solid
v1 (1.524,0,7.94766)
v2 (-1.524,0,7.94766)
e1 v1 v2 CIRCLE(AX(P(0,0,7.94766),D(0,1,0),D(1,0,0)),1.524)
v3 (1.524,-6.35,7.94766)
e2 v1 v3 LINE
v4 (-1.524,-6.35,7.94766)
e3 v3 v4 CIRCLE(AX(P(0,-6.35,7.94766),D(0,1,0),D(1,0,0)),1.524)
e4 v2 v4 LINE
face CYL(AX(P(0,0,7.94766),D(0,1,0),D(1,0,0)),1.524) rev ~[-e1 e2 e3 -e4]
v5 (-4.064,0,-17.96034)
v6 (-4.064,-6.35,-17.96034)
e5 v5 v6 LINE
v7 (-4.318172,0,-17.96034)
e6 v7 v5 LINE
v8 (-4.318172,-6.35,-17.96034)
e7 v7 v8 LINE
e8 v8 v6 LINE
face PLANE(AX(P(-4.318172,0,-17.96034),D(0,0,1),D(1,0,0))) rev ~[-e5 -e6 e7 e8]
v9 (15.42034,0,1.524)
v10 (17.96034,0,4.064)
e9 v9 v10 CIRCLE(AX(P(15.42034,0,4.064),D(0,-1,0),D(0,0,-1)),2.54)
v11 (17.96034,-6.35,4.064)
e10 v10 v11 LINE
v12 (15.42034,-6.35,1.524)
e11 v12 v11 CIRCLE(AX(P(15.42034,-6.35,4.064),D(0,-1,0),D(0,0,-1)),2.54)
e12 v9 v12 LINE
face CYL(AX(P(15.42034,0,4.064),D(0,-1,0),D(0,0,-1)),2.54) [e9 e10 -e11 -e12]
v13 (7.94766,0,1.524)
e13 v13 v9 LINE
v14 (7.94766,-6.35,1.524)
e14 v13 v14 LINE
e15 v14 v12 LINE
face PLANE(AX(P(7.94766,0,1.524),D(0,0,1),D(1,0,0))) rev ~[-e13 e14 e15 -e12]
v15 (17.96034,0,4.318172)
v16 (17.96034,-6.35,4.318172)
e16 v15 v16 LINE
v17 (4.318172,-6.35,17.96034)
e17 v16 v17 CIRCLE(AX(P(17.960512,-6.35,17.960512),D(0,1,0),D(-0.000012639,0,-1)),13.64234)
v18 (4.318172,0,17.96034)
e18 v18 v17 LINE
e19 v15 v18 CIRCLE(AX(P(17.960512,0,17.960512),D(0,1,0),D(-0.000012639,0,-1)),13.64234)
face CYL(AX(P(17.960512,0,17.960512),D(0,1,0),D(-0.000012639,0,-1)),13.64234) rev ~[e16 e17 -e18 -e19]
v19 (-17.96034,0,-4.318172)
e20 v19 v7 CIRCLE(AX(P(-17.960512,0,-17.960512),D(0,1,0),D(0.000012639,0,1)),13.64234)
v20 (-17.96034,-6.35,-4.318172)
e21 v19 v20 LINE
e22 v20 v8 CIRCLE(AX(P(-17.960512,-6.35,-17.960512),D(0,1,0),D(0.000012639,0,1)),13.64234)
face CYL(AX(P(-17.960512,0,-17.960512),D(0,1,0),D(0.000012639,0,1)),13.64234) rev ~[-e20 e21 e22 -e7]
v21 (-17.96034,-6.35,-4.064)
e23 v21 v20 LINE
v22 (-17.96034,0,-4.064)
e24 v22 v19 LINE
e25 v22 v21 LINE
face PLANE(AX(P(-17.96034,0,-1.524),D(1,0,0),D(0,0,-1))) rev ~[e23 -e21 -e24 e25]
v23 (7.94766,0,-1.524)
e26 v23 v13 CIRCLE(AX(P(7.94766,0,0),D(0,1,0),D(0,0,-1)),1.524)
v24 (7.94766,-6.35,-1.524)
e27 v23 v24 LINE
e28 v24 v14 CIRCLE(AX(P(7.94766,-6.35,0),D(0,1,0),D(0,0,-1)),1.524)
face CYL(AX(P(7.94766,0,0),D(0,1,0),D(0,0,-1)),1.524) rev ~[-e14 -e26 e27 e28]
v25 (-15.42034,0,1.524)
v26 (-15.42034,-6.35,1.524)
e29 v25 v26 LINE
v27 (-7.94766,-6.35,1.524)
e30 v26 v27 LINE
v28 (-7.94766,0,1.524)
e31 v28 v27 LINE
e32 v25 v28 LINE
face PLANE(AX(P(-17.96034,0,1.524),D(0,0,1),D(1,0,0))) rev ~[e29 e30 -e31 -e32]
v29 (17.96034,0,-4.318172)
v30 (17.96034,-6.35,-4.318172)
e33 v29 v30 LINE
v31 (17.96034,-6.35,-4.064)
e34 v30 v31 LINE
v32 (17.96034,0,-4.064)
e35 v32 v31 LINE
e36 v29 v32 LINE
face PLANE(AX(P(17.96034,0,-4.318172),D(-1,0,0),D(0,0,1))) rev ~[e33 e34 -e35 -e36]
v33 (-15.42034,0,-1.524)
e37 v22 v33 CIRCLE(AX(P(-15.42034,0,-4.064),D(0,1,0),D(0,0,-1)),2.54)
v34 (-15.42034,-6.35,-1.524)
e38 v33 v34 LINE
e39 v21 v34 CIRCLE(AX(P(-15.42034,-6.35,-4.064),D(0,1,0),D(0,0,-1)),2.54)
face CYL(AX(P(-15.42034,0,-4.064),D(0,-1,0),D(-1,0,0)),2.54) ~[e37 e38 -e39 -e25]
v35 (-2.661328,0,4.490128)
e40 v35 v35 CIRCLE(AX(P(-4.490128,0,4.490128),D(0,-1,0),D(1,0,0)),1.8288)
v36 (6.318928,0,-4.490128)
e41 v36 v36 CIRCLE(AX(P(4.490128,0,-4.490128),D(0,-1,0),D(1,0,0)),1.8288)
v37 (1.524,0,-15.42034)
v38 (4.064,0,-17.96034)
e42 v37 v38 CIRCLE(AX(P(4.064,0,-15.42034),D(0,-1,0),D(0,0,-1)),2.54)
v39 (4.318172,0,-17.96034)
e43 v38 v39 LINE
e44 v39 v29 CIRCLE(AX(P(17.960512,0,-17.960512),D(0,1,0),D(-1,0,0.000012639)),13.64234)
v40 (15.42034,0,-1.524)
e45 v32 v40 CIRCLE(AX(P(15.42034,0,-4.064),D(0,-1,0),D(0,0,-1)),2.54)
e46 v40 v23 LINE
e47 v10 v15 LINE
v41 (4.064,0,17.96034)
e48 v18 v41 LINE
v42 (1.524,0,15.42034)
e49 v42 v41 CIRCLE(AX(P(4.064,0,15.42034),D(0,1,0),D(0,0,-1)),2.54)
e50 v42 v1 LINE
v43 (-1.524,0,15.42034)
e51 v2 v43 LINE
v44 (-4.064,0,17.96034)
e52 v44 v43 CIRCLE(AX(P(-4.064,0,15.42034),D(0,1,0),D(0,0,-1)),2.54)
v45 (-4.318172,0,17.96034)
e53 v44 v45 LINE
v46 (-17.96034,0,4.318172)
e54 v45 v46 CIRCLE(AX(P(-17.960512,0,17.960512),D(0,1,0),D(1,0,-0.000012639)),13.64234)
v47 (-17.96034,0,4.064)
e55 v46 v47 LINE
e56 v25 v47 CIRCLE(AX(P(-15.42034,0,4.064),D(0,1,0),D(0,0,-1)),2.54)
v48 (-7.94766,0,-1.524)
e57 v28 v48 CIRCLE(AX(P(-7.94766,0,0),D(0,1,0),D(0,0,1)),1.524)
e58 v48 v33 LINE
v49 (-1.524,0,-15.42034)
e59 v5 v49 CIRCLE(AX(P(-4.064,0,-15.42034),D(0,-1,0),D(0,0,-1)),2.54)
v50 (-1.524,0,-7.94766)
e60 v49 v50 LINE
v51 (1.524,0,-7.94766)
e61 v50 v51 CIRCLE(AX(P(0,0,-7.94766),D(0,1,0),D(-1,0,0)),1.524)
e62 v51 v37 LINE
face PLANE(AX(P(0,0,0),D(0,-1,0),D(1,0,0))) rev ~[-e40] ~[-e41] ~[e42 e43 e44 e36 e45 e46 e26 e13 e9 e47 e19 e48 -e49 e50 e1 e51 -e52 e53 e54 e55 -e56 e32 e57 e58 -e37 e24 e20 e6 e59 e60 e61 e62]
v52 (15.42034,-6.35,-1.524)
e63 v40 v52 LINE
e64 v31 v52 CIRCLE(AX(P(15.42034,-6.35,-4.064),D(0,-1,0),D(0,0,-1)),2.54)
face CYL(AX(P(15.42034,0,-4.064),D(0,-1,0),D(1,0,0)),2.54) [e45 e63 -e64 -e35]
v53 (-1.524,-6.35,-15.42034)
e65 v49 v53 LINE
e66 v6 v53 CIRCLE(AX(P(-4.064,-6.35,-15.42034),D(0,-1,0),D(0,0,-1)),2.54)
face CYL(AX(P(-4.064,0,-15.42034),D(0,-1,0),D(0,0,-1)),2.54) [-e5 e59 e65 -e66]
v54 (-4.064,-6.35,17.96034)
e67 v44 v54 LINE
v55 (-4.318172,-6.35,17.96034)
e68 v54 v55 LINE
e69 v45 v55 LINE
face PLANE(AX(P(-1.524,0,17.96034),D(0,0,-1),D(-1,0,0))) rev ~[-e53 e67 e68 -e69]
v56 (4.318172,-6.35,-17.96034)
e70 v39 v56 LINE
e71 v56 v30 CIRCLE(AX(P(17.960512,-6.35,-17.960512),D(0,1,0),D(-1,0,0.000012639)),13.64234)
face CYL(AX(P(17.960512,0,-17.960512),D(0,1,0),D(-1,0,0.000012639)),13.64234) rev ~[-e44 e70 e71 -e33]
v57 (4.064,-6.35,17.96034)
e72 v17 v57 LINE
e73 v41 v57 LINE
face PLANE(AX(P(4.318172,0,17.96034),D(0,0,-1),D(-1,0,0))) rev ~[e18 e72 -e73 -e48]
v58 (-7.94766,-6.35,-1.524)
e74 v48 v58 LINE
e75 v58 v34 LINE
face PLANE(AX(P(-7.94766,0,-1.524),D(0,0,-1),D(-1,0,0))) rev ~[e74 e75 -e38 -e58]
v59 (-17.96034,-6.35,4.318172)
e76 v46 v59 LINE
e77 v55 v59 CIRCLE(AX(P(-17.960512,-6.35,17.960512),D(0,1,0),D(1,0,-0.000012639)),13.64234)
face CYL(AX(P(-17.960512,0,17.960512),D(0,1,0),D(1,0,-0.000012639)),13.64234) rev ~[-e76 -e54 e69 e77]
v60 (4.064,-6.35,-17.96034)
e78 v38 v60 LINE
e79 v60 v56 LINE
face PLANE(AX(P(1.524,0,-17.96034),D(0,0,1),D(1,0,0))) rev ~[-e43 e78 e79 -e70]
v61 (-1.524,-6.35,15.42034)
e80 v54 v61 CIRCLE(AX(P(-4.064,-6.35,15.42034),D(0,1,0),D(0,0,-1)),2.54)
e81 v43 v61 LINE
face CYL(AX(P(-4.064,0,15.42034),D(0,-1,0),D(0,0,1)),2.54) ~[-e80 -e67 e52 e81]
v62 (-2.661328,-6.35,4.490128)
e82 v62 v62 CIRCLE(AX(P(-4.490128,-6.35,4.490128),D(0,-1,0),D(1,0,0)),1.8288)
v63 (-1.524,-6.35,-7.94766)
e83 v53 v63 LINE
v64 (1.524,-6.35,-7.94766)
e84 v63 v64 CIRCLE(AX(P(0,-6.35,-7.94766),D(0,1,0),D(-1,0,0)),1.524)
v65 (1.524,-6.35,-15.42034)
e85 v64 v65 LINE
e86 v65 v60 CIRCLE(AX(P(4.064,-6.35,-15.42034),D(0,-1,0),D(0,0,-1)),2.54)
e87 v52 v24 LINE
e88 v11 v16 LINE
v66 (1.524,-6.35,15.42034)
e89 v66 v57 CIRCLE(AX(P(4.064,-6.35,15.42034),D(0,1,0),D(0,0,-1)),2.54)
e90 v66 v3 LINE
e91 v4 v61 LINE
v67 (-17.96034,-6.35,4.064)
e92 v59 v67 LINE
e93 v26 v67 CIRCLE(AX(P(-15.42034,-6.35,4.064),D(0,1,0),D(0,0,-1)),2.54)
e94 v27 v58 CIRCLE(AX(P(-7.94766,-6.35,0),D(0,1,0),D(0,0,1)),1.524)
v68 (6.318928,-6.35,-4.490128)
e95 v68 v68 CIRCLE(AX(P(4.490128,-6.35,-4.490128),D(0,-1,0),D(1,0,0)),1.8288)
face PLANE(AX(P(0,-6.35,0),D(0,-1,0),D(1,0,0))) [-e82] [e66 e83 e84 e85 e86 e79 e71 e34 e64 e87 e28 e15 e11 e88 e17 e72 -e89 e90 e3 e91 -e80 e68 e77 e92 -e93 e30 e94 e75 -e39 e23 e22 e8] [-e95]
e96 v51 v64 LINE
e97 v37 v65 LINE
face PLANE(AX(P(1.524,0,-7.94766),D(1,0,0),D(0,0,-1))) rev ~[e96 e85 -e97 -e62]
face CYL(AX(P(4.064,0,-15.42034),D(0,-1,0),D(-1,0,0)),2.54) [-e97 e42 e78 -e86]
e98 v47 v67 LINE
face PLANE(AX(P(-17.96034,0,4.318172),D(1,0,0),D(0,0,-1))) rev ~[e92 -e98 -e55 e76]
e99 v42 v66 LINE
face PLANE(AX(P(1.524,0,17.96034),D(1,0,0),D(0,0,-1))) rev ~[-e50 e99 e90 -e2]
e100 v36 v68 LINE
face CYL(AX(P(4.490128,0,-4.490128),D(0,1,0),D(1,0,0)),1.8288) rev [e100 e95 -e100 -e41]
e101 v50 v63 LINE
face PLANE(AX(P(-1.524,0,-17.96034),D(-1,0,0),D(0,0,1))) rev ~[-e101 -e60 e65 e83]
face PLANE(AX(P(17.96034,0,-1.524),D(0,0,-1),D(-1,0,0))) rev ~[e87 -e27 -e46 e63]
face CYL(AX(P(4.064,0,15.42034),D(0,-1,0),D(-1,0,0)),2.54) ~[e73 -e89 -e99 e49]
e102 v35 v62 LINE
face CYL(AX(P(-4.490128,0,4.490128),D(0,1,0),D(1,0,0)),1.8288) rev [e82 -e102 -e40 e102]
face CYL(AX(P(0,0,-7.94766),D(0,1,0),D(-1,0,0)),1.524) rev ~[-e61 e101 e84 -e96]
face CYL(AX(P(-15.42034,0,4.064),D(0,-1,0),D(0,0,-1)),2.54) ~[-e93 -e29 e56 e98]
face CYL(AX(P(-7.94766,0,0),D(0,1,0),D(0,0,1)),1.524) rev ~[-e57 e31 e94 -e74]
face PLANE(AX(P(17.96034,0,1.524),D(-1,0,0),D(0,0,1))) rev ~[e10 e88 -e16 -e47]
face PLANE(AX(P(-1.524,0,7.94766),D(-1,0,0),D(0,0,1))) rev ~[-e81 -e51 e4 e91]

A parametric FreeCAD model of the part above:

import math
import FreeCAD as App
import Part
import Sketcher
Q = App.Units.Quantity


def edges_at(feature, points):
    """Names of the edges that pass closest to the given points."""
    edges = feature.Shape.Edges
    near = lambda p: min(range(len(edges)), key=lambda i: edges[i].distToShape(Part.Vertex(*p))[0])
    return sorted({f"Edge{near(p) + 1}" for p in points})

doc = App.newDocument("Part")
body = doc.addObject("PartDesign::Body", "Body")

# Sketch on XZ plane
sketch1 = doc.addObject("Sketcher::SketchObject", "Sketch")
body.addObject(sketch1)
sketch1.AttachmentSupport = (doc.XZ_Plane, [""])
sketch1.MapMode = "FlatFace"
sketch1.addGeometry(Part.LineSegment(App.Vector(-4.318172, -17.96034, 0), App.Vector(-1.524, -17.96034, 0)), False)
sketch1.addGeometry(Part.LineSegment(App.Vector(-1.524, -17.96034, 0), App.Vector(-1.524, -7.94766, 0)), False)
sketch1.addGeometry(Part.ArcOfCircle(Part.Circle(App.Vector(0, -7.94766, 0), App.Vector(0, 0, 1), 1.524), math.radians(0), math.radians(180)), False)
sketch1.addGeometry(Part.LineSegment(App.Vector(1.524, -7.94766, 0), App.Vector(1.524, -17.96034, 0)), False)
sketch1.addGeometry(Part.LineSegment(App.Vector(1.524, -17.96034, 0), App.Vector(4.318172, -17.96034, 0)), False)
sketch1.addGeometry(Part.ArcOfCircle(Part.Circle(App.Vector(17.960512, -17.960512, 0), App.Vector(0, 0, 1), 13.64234), math.radians(90.000724), math.radians(179.999276)), False)
sketch1.addGeometry(Part.LineSegment(App.Vector(17.96034, -4.318172, 0), App.Vector(17.96034, -1.524, 0)), False)
sketch1.addGeometry(Part.LineSegment(App.Vector(17.96034, -1.524, 0), App.Vector(7.94766, -1.524, 0)), False)
sketch1.addGeometry(Part.ArcOfCircle(Part.Circle(App.Vector(7.94766, 0, 0), App.Vector(0, 0, 1), 1.524), math.radians(90), math.radians(270)), False)
sketch1.addGeometry(Part.LineSegment(App.Vector(7.94766, 1.524, 0), App.Vector(17.96034, 1.524, 0)), False)
sketch1.addGeometry(Part.LineSegment(App.Vector(17.96034, 1.524, 0), App.Vector(17.96034, 4.318172, 0)), False)
sketch1.addGeometry(Part.ArcOfCircle(Part.Circle(App.Vector(17.960512, 17.960512, 0), App.Vector(0, 0, 1), 13.64234), math.radians(-179.999276), math.radians(-90.000724)), False)
sketch1.addGeometry(Part.LineSegment(App.Vector(4.318172, 17.96034, 0), App.Vector(1.524, 17.96034, 0)), False)
sketch1.addGeometry(Part.LineSegment(App.Vector(1.524, 17.96034, 0), App.Vector(1.524, 7.94766, 0)), False)
sketch1.addGeometry(Part.ArcOfCircle(Part.Circle(App.Vector(0, 7.94766, 0), App.Vector(0, 0, 1), 1.524), math.radians(180), math.radians(360)), False)
sketch1.addGeometry(Part.LineSegment(App.Vector(-1.524, 7.94766, 0), App.Vector(-1.524, 17.96034, 0)), False)
sketch1.addGeometry(Part.LineSegment(App.Vector(-1.524, 17.96034, 0), App.Vector(-4.318172, 17.96034, 0)), False)
sketch1.addGeometry(Part.ArcOfCircle(Part.Circle(App.Vector(-17.960512, 17.960512, 0), App.Vector(0, 0, 1), 13.64234), math.radians(-89.999276), math.radians(-0.000724)), False)
sketch1.addGeometry(Part.LineSegment(App.Vector(-17.96034, 4.318172, 0), App.Vector(-17.96034, 1.524, 0)), False)
sketch1.addGeometry(Part.LineSegment(App.Vector(-17.96034, 1.524, 0), App.Vector(-7.94766, 1.524, 0)), False)
sketch1.addGeometry(Part.ArcOfCircle(Part.Circle(App.Vector(-7.94766, 0, 0), App.Vector(0, 0, 1), 1.524), math.radians(-90), math.radians(90)), False)
sketch1.addGeometry(Part.LineSegment(App.Vector(-7.94766, -1.524, 0), App.Vector(-17.96034, -1.524, 0)), False)
sketch1.addGeometry(Part.LineSegment(App.Vector(-17.96034, -1.524, 0), App.Vector(-17.96034, -4.318172, 0)), False)
sketch1.addGeometry(Part.ArcOfCircle(Part.Circle(App.Vector(-17.960512, -17.960512, 0), App.Vector(0, 0, 1), 13.64234), math.radians(0.000724), math.radians(89.999276)), False)
sketch1.addGeometry(Part.Circle(App.Vector(4.490128, -4.490128, 0), App.Vector(0, 0, 1), 1.8288), False)
sketch1.addGeometry(Part.Circle(App.Vector(-4.490128, 4.490128, 0), App.Vector(0, 0, 1), 1.8288), False)
sketch1.addConstraint(Sketcher.Constraint("Coincident", 0, 2, 1, 1))
sketch1.addConstraint(Sketcher.Constraint("Tangent", 1, 2, 2, 2))
sketch1.addConstraint(Sketcher.Constraint("Tangent", 2, 1, 3, 1))
sketch1.addConstraint(Sketcher.Constraint("Coincident", 3, 2, 4, 1))
sketch1.addConstraint(Sketcher.Constraint("Coincident", 4, 2, 5, 2))
sketch1.addConstraint(Sketcher.Constraint("Coincident", 5, 1, 6, 1))
sketch1.addConstraint(Sketcher.Constraint("Coincident", 6, 2, 7, 1))
sketch1.addConstraint(Sketcher.Constraint("Tangent", 7, 2, 8, 2))
sketch1.addConstraint(Sketcher.Constraint("Tangent", 8, 1, 9, 1))
sketch1.addConstraint(Sketcher.Constraint("Coincident", 9, 2, 10, 1))
sketch1.addConstraint(Sketcher.Constraint("Coincident", 10, 2, 11, 2))
sketch1.addConstraint(Sketcher.Constraint("Coincident", 11, 1, 12, 1))
sketch1.addConstraint(Sketcher.Constraint("Coincident", 12, 2, 13, 1))
sketch1.addConstraint(Sketcher.Constraint("Tangent", 13, 2, 14, 2))
sketch1.addConstraint(Sketcher.Constraint("Tangent", 14, 1, 15, 1))
sketch1.addConstraint(Sketcher.Constraint("Coincident", 15, 2, 16, 1))
sketch1.addConstraint(Sketcher.Constraint("Coincident", 16, 2, 17, 2))
sketch1.addConstraint(Sketcher.Constraint("Coincident", 17, 1, 18, 1))
sketch1.addConstraint(Sketcher.Constraint("Coincident", 18, 2, 19, 1))
sketch1.addConstraint(Sketcher.Constraint("Tangent", 19, 2, 20, 2))
sketch1.addConstraint(Sketcher.Constraint("Tangent", 20, 1, 21, 1))
sketch1.addConstraint(Sketcher.Constraint("Coincident", 21, 2, 22, 1))
sketch1.addConstraint(Sketcher.Constraint("Coincident", 22, 2, 23, 2))
sketch1.addConstraint(Sketcher.Constraint("Coincident", 23, 1, 0, 1))
sketch1.addConstraint(Sketcher.Constraint("Horizontal", 0))
sketch1.addConstraint(Sketcher.Constraint("Vertical", 1))
sketch1.addConstraint(Sketcher.Constraint("Vertical", 3))
sketch1.addConstraint(Sketcher.Constraint("Horizontal", 4))
sketch1.addConstraint(Sketcher.Constraint("Vertical", 6))
sketch1.addConstraint(Sketcher.Constraint("Horizontal", 7))
sketch1.addConstraint(Sketcher.Constraint("Horizontal", 9))
sketch1.addConstraint(Sketcher.Constraint("Vertical", 10))
sketch1.addConstraint(Sketcher.Constraint("Horizontal", 12))
sketch1.addConstraint(Sketcher.Constraint("Vertical", 13))
sketch1.addConstraint(Sketcher.Constraint("Vertical", 15))
sketch1.addConstraint(Sketcher.Constraint("Horizontal", 16))
sketch1.addConstraint(Sketcher.Constraint("Vertical", 18))
sketch1.addConstraint(Sketcher.Constraint("Horizontal", 19))
sketch1.addConstraint(Sketcher.Constraint("Horizontal", 21))
sketch1.addConstraint(Sketcher.Constraint("Vertical", 22))
sketch1.addConstraint(Sketcher.Constraint("Equal", 2, 8))
sketch1.addConstraint(Sketcher.Constraint("Equal", 5, 11))
sketch1.addConstraint(Sketcher.Constraint("Equal", 8, 14))
sketch1.addConstraint(Sketcher.Constraint("Equal", 11, 17))
sketch1.addConstraint(Sketcher.Constraint("Equal", 14, 20))
sketch1.addConstraint(Sketcher.Constraint("Equal", 17, 23))
sketch1.addConstraint(Sketcher.Constraint("Equal", 24, 25))
sketch1.addConstraint(Sketcher.Constraint("Symmetric", 2, 3, 14, 3, -1, 1))
sketch1.addConstraint(Sketcher.Constraint("Symmetric", 5, 3, 17, 3, -1, 1))
sketch1.addConstraint(Sketcher.Constraint("Symmetric", 8, 3, 20, 3, -1, 1))
sketch1.addConstraint(Sketcher.Constraint("Symmetric", 11, 3, 23, 3, -1, 1))
sketch1.addConstraint(Sketcher.Constraint("Symmetric", 24, 3, 25, 3, -1, 1))
sketch1.addConstraint(Sketcher.Constraint("Symmetric", 11, 3, 17, 3, -2))
sketch1.addConstraint(Sketcher.Constraint("Symmetric", 0, 2, 3, 2, -2))
sketch1.addConstraint(Sketcher.Constraint("Symmetric", 9, 2, 18, 2, -2))
sketch1.addConstraint(Sketcher.Constraint("Horizontal", 12, 2, 15, 2))
sketch1.addConstraint(Sketcher.Constraint("Vertical", 6, 2, 9, 2))
sketch1.addConstraint(Sketcher.Constraint("Vertical", 18, 2, 21, 2))
sketch1.addConstraint(Sketcher.Constraint("Equal", 21, 1))
sketch1.addConstraint(Sketcher.Constraint("Equal", 16, 6))
sketch1.addConstraint(Sketcher.Constraint("Equal", 3, 13))
sketch1.addConstraint(Sketcher.Constraint("Radius", 2, Q("0.06 in")))
sketch1.addConstraint(Sketcher.Constraint("Diameter", 24, Q("0.144 in")))
sketch1.addConstraint(Sketcher.Constraint("Radius", 5, Q("0.5371 in")))
sketch1.addConstraint(Sketcher.Constraint("DistanceX", 7, 2, 7, 1, Q("0.3942 in")))
sketch1.addConstraint(Sketcher.Constraint("DistanceY", 2, 3, -1, 1, Q("0.3129 in")))
sketch1.addConstraint(Sketcher.Constraint("DistanceX", -1, 1, 8, 3, Q("0.3129 in")))
sketch1.addConstraint(Sketcher.Constraint("DistanceX", 0, 1, 0, 2, Q("2.794172 mm")))
sketch1.addConstraint(Sketcher.Constraint("DistanceX", 25, 3, 11, 1, Q("8.8083 mm")))
sketch1.addConstraint(Sketcher.Constraint("DistanceY", 24, 3, -1, 1, Q("4.490128 mm")))
pad1 = doc.addObject("PartDesign::Pad", "Pad")
body.addObject(pad1)
pad1.Profile = sketch1
pad1.Length = Q("0.25 in")
doc.recompute()

fillet = doc.addObject("PartDesign::Fillet", "Fillet")
body.addObject(fillet)
fillet.Base = (pad1, edges_at(pad1, [
    (-1.524, -3.175, -17.96),
    (1.524, -3.175, -17.96),
    (-17.96, -3.175, 1.524),
    (17.96, -3.175, 1.524),
    (-17.96, -3.175, -1.524),
    (17.96, -3.175, -1.524),
    (1.524, -3.175, 17.96),
    (-1.524, -3.175, 17.96),
]))
fillet.Radius = Q("0.1 in")

doc.recompute()
